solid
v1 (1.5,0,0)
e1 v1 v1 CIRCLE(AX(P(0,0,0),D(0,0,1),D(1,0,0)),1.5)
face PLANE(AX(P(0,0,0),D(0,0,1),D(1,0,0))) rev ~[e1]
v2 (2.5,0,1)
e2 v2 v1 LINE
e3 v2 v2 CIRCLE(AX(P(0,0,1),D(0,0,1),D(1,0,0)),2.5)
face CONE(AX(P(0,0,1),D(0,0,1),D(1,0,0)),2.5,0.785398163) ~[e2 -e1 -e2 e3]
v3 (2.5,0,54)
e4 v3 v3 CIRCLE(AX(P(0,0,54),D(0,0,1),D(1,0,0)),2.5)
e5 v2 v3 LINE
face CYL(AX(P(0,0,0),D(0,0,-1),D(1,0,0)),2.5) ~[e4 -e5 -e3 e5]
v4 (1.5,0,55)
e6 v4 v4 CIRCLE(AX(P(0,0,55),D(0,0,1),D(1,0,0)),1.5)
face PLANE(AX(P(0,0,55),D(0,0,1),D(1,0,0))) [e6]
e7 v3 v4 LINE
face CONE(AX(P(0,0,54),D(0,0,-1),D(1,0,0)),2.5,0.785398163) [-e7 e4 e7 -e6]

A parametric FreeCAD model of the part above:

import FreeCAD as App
import Part
import Sketcher

V = App.Vector
Q = App.Units.Quantity


def edges_at(feature, points):
    """Names of the edges that pass closest to the given points."""
    edges = feature.Shape.Edges
    near = lambda p: min(range(len(edges)), key=lambda i: edges[i].distToShape(Part.Vertex(*p))[0])
    return sorted({f"Edge{near(p) + 1}" for p in points})

doc = App.newDocument("Part")
body = doc.addObject("PartDesign::Body", "Body")

# Sketch on XY plane
sketch1 = doc.addObject("Sketcher::SketchObject", "Sketch")
body.addObject(sketch1)
sketch1.AttachmentSupport = (doc.XY_Plane, [""])
sketch1.MapMode = "FlatFace"
sketch1.addGeometry(Part.Circle(V(0, 0, 0), V(0, 0, 1), 2.5), False)
sketch1.addConstraint([
    Sketcher.Constraint("Coincident", 0, 3, -1, 1),
    Sketcher.Constraint("Diameter", 0, Q("5 mm")),
])
pad1 = doc.addObject("PartDesign::Pad", "Pad")
body.addObject(pad1)
pad1.Profile = sketch1
pad1.Length = 55
doc.recompute()

chamfer = doc.addObject("PartDesign::Chamfer", "Chamfer")
body.addObject(chamfer)
chamfer.Base = (pad1, edges_at(pad1, [(-2.5, 0, 55), (-2.5, 0, 0)]))
chamfer.Size = 1

doc.recompute()
